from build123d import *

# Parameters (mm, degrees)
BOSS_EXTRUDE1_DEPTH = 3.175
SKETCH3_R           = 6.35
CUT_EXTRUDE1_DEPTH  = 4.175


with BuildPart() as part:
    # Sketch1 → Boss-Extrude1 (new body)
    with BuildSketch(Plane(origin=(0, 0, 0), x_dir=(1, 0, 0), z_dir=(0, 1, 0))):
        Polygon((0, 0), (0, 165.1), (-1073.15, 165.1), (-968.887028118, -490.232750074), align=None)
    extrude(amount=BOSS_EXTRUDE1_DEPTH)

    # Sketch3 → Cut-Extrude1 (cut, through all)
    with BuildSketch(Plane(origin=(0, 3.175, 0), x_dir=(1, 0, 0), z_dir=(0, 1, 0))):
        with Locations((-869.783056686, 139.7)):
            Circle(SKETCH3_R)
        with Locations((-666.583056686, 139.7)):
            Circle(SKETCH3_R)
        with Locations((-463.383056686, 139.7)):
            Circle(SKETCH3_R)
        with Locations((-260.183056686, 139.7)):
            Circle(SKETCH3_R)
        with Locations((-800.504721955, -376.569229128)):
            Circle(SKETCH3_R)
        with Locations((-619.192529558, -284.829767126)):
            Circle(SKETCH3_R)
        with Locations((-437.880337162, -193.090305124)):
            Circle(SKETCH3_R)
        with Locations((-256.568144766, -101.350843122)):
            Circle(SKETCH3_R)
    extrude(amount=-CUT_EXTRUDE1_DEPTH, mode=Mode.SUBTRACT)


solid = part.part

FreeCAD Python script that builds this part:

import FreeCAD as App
import Part
import Sketcher

V = App.Vector
Q = App.Units.Quantity

doc = App.newDocument("Part")
body = doc.addObject("PartDesign::Body", "Body")

# Sketch on XZ plane
sketch1 = body.newObject("Sketcher::SketchObject", "Sketch")
sketch1.AttachmentSupport = (doc.getObject("XZ_Plane"), [""])
sketch1.MapMode = "FlatFace"
sketch1.addGeometry([
    Part.LineSegment(V(0, 0, 0), V(0, -165.1, 0)),
    Part.LineSegment(V(0, -165.1, 0), V(-1073.15, -165.1, 0)),
    Part.LineSegment(V(-1073.15, -165.1, 0), V(-968.887028, 490.23275, 0)),
    Part.LineSegment(V(-968.887028, 490.23275, 0), V(0, 0, 0)),
], False)
sketch1.addConstraint([
    Sketcher.Constraint("Coincident", 0, 2, 1, 1),
    Sketcher.Constraint("Coincident", 1, 2, 2, 1),
    Sketcher.Constraint("Coincident", 2, 2, 3, 1),
    Sketcher.Constraint("Coincident", 3, 2, 0, 1),
    Sketcher.Constraint("Vertical", 0),
    Sketcher.Constraint("Horizontal", 1),
    Sketcher.Constraint("Coincident", 3, 2, -1, 1),
    Sketcher.Constraint("DistanceY", 0, 2, 0, 1, Q("6.5 in")),
    Sketcher.Constraint("DistanceX", 1, 2, 1, 1, Q("42.25 in")),
    Sketcher.Constraint("Distance", 3, Q("42.75 in")),
    Sketcher.Constraint("Distance", 2, Q("26.125 in")),
])
pad1 = body.newObject("PartDesign::Pad", "Pad")
pad1.Profile = sketch1
pad1.Length = Q("0.125 in")
pad1.Reversed = True

# Sketch on XZ plane
sketch2 = body.newObject("Sketcher::SketchObject", "Sketch001")
sketch2.AttachmentSupport = (doc.getObject("XZ_Plane"), [""])
sketch2.MapMode = "FlatFace"
sketch2.AttachmentOffset = App.Placement(V(0, 0, -0.125 * 25.4), App.Rotation())
sketch2.addGeometry([
    Part.Circle(V(-869.783057, -139.7, 0), V(0, 0, 1), 6.35),  # 0
    Part.Circle(V(-666.583057, -139.7, 0), V(0, 0, 1), 6.35),  # 1
    Part.Circle(V(-463.383057, -139.7, 0), V(0, 0, 1), 6.35),  # 2
    Part.Circle(V(-260.183057, -139.7, 0), V(0, 0, 1), 6.35),  # 3
    Part.Circle(V(-800.504722, 376.569229, 0), V(0, 0, 1), 6.35),  # 4
    Part.Circle(V(-619.19253, 284.829767, 0), V(0, 0, 1), 6.35),  # 5
    Part.Circle(V(-437.880337, 193.090305, 0), V(0, 0, 1), 6.35),  # 6
    Part.Circle(V(-256.568145, 101.350843, 0), V(0, 0, 1), 6.35),  # 7
], False)
sketch2.addConstraint([
    Sketcher.Constraint("Equal", 0, 1),
    Sketcher.Constraint("Equal", 1, 2),
    Sketcher.Constraint("Equal", 2, 3),
    Sketcher.Constraint("Equal", 3, 4),
    Sketcher.Constraint("Equal", 4, 5),
    Sketcher.Constraint("Equal", 5, 6),
    Sketcher.Constraint("Equal", 6, 7),
    Sketcher.Constraint("Horizontal", 0, 3, 1, 3),
    Sketcher.Constraint("Horizontal", 1, 3, 2, 3),
    Sketcher.Constraint("Horizontal", 2, 3, 3, 3),
    Sketcher.Constraint("Diameter", 0, Q("0.5 in")),
    Sketcher.Constraint("DistanceX", 0, 3, 1, 3, Q("8 in")),
    Sketcher.Constraint("DistanceX", 1, 3, 2, 3, Q("8 in")),
    Sketcher.Constraint("DistanceX", 2, 3, 3, 3, Q("8 in")),
    Sketcher.Constraint("DistanceY", 0, 3, -1, 1, Q("5.5 in")),
    Sketcher.Constraint("DistanceX", 4, 3, -1, 1, Q("800.504722 mm")),
    Sketcher.Constraint("DistanceY", -1, 1, 4, 3, Q("376.569229 mm")),
    Sketcher.Constraint("DistanceX", 5, 3, -1, 1, Q("619.19253 mm")),
    Sketcher.Constraint("DistanceX", 2, 3, 6, 3, Q("25.50272 mm")),
    Sketcher.Constraint("DistanceX", 3, 3, 7, 3, Q("3.614912 mm")),
    Sketcher.Constraint("DistanceX", 0, 3, -1, 1, Q("869.783057 mm")),
    Sketcher.Constraint("DistanceY", -1, 1, 5, 3, Q("284.829767 mm")),
    Sketcher.Constraint("DistanceY", -1, 1, 6, 3, Q("193.090305 mm")),
    Sketcher.Constraint("DistanceY", -1, 1, 7, 3, Q("101.350843 mm")),
])
pocket1 = body.newObject("PartDesign::Pocket", "Pocket")
pocket1.Profile = sketch2
pocket1.Type = "ThroughAll"
pocket1.Reversed = True

doc.recompute()
